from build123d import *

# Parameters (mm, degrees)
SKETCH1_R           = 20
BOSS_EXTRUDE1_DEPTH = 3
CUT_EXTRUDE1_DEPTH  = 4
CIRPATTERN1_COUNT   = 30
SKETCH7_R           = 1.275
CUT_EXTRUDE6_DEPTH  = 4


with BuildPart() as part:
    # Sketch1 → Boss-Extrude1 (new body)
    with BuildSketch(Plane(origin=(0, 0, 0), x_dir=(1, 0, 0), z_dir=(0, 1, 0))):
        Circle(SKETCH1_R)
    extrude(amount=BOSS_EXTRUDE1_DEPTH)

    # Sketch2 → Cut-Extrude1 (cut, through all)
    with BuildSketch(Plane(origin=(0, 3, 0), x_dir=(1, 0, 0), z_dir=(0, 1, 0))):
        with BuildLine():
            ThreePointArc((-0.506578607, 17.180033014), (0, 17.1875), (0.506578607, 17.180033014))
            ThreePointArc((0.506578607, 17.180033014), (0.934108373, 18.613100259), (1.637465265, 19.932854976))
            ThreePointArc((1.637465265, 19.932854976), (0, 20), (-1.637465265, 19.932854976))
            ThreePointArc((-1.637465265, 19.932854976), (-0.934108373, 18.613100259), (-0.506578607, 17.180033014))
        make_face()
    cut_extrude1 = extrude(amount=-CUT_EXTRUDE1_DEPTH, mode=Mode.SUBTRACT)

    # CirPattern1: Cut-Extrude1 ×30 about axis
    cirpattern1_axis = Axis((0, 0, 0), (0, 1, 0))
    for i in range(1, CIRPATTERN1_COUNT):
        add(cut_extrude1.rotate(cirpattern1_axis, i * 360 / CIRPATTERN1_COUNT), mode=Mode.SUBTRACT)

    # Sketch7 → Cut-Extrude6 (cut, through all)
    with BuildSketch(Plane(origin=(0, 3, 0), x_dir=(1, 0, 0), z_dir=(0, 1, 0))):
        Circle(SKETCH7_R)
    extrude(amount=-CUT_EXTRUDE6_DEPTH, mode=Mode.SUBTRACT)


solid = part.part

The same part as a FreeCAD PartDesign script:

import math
import FreeCAD as App
import Part
import Sketcher

V = App.Vector
Q = App.Units.Quantity

doc = App.newDocument("Part")
body = doc.addObject("PartDesign::Body", "Body")

# Sketch on XZ plane
sketch1 = body.newObject("Sketcher::SketchObject", "Sketch")
sketch1.AttachmentSupport = (doc.getObject("XZ_Plane"), [""])
sketch1.MapMode = "FlatFace"
sketch1.addGeometry(Part.Circle(V(0, 0, 0), V(0, 0, 1), 20), False)
sketch1.addConstraint(Sketcher.Constraint("Coincident", 0, 3, -1, 1))
sketch1.addConstraint(Sketcher.Constraint("Diameter", 0, Q("40 mm")))
pad1 = body.newObject("PartDesign::Pad", "Pad")
pad1.Profile = sketch1
pad1.Length = 3
pad1.Reversed = True

# Sketch on XZ plane
sketch2 = body.newObject("Sketcher::SketchObject", "Sketch001")
sketch2.AttachmentSupport = (doc.getObject("XZ_Plane"), [""])
sketch2.MapMode = "FlatFace"
sketch2.AttachmentOffset = App.Placement(V(0, 0, -3), App.Rotation())
sketch2.addGeometry(Part.ArcOfCircle(Part.Circle(V(0, 0, 0), V(0, 0, 1), 17.1875), math.radians(-91.688961), math.radians(-88.311039)), False)
sketch2.addGeometry(Part.ArcOfCircle(Part.Circle(V(7.871524, -15.763141, 0), V(0, 0, 1), 7.5), math.radians(-169.110299), math.radians(-146.223009)), False)
sketch2.addGeometry(Part.ArcOfCircle(Part.Circle(V(0, 0, 0), V(0, 0, 1), 20), math.radians(-94.696249), math.radians(-85.303751)), False)
sketch2.addGeometry(Part.ArcOfCircle(Part.Circle(V(-7.871524, -15.763141, 0), V(0, 0, 1), 7.5), math.radians(-33.776991), math.radians(-10.889701)), False)
sketch2.addConstraint(Sketcher.Constraint("Coincident", 0, 2, 1, 1))
sketch2.addConstraint(Sketcher.Constraint("Coincident", 1, 2, 2, 2))
sketch2.addConstraint(Sketcher.Constraint("Coincident", 2, 1, 3, 1))
sketch2.addConstraint(Sketcher.Constraint("Coincident", 3, 2, 0, 1))
sketch2.addConstraint(Sketcher.Constraint("Coincident", 0, 3, -1, 1))
sketch2.addConstraint(Sketcher.Constraint("Coincident", 2, 3, -1, 1))
sketch2.addConstraint(Sketcher.Constraint("Equal", 1, 3))
sketch2.addConstraint(Sketcher.Constraint("Symmetric", 1, 3, 3, 3, -2))
sketch2.addConstraint(Sketcher.Constraint("Radius", 2, Q("20 mm")))
sketch2.addConstraint(Sketcher.Constraint("Radius", 1, Q("7.5 mm")))
sketch2.addConstraint(Sketcher.Constraint("Radius", 0, Q("17.1875 mm")))
sketch2.addConstraint(Sketcher.Constraint("DistanceY", 1, 3, -1, 1, Q("15.763141 mm")))
sketch2.addConstraint(Sketcher.Constraint("DistanceX", -1, 1, 0, 2, Q("0.506579 mm")))
pocket1 = body.newObject("PartDesign::Pocket", "Pocket")
pocket1.Profile = sketch2
pocket1.Type = "ThroughAll"
pocket1.Reversed = True
doc.recompute()

polarpattern = body.newObject("PartDesign::PolarPattern", "PolarPattern")
polarpattern.Originals = [pocket1]
polarpattern.Axis = (doc.getObject("Y_Axis"), [""])
polarpattern.Angle = 360
polarpattern.Occurrences = 30
body.Tip = polarpattern

# Sketch on XZ plane
sketch3 = body.newObject("Sketcher::SketchObject", "Sketch002")
sketch3.AttachmentSupport = (doc.getObject("XZ_Plane"), [""])
sketch3.MapMode = "FlatFace"
sketch3.AttachmentOffset = App.Placement(V(0, 0, -3), App.Rotation())
sketch3.addGeometry(Part.Circle(V(0, 0, 0), V(0, 0, 1), 1.275), False)
sketch3.addConstraint(Sketcher.Constraint("Coincident", 0, 3, -1, 1))
sketch3.addConstraint(Sketcher.Constraint("Diameter", 0, Q("2.55 mm")))
pocket2 = body.newObject("PartDesign::Pocket", "Pocket001")
pocket2.Profile = sketch3
pocket2.Type = "ThroughAll"
pocket2.Reversed = True

doc.recompute()
